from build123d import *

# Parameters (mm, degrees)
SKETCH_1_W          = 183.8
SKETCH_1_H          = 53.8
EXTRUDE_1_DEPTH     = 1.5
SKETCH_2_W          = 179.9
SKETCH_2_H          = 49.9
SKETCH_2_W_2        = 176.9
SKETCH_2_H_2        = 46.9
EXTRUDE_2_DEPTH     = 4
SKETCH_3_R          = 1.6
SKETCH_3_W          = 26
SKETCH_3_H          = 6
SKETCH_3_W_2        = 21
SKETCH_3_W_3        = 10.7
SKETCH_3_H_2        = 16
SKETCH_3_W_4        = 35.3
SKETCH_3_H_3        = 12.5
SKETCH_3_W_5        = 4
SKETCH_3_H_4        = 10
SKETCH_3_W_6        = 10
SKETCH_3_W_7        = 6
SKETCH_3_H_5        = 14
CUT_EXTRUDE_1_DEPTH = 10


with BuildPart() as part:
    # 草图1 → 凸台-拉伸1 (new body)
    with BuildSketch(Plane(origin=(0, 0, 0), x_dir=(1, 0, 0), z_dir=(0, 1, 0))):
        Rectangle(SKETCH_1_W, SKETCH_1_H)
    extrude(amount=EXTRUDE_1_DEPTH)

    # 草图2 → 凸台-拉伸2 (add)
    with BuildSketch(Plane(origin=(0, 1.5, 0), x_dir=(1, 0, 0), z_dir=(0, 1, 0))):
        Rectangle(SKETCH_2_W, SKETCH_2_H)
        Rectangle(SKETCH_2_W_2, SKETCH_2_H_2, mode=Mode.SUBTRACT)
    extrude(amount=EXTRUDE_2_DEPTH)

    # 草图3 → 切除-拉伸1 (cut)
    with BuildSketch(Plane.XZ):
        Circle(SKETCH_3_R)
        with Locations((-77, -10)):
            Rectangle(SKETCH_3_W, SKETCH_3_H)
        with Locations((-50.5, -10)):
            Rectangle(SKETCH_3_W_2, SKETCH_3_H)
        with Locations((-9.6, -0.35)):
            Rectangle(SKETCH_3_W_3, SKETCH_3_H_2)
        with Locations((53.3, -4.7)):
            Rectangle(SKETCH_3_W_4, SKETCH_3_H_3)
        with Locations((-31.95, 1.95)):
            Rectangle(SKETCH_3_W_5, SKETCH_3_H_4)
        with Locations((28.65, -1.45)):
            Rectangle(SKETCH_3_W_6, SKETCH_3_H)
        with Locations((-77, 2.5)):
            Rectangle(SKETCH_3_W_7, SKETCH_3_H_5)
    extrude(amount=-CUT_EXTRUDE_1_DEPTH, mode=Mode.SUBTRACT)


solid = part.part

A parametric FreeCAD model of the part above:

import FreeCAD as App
import Part
import Sketcher

V = App.Vector

doc = App.newDocument("Part")
params = doc.addObject("Spreadsheet::Sheet", "Params")
for row, (alias, value) in enumerate([
    ("sketch1_width", "183.8 mm"),
    ("sketch1_height", "53.8 mm"),
    ("pad1_length", "1.5 mm"),
    ("sketch2_width", "179.9 mm"),
    ("sketch2_width2", "176.9 mm"),
    ("sketch2_height", "49.9 mm"),
    ("sketch2_height2", "46.9 mm"),
    ("pad2_length", "4 mm"),
    ("sketch3_diameter", "3.2 mm"),
    ("sketch3_width", "26 mm"),
    ("sketch3_width2", "21 mm"),
    ("sketch3_width3", "4 mm"),
    ("sketch3_width4", "10 mm"),
    ("pocket1_length", "10 mm"),
], start=1):
    params.set(f"A{row}", alias)
    params.set(f"B{row}", "=" + value)
    params.setAlias(f"B{row}", alias)

body = doc.addObject("PartDesign::Body", "Body")

sketch1 = doc.addObject("Sketcher::SketchObject", "Sketch")
body.addObject(sketch1)
sketch1.AttachmentSupport = (doc.XZ_Plane, [""])
sketch1.MapMode = "FlatFace"
sketch1.addGeometry([
    Part.LineSegment(V(-91.9, -26.9, 0), V(-91.9, 26.9, 0)),
    Part.LineSegment(V(-91.9, 26.9, 0), V(91.9, 26.9, 0)),
    Part.LineSegment(V(91.9, 26.9, 0), V(91.9, -26.9, 0)),
    Part.LineSegment(V(91.9, -26.9, 0), V(-91.9, -26.9, 0)),
], False)
sketch1.addConstraint([
    Sketcher.Constraint("Coincident", 0, 2, 1, 1),
    Sketcher.Constraint("Coincident", 1, 2, 2, 1),
    Sketcher.Constraint("Coincident", 2, 2, 3, 1),
    Sketcher.Constraint("Coincident", 3, 2, 0, 1),
    Sketcher.Constraint("Vertical", 0),
    Sketcher.Constraint("Horizontal", 1),
    Sketcher.Constraint("Vertical", 2),
    Sketcher.Constraint("Horizontal", 3),
    Sketcher.Constraint("Symmetric", 0, 2, 2, 2, -1, 1),
    Sketcher.Constraint("DistanceX", 1, 1, 1, 2, 183.8),
    Sketcher.Constraint("DistanceY", 0, 1, 0, 2, 53.8),
])
sketch1.setExpression("Constraints[9]", "Params.sketch1_width")
sketch1.setExpression("Constraints[10]", "Params.sketch1_height")
pad1 = doc.addObject("PartDesign::Pad", "Pad")
body.addObject(pad1)
pad1.Profile = sketch1
pad1.setExpression("Length", "Params.pad1_length")
pad1.Reversed = True

sketch2 = doc.addObject("Sketcher::SketchObject", "Sketch001")
body.addObject(sketch2)
sketch2.AttachmentSupport = (doc.XZ_Plane, [""])
sketch2.MapMode = "FlatFace"
sketch2.AttachmentOffset = App.Placement(V(0, 0, -1.5), App.Rotation())
sketch2.addGeometry([
    Part.LineSegment(V(-89.95, -24.95, 0), V(-89.95, 24.95, 0)),
    Part.LineSegment(V(-89.95, 24.95, 0), V(89.95, 24.95, 0)),
    Part.LineSegment(V(89.95, 24.95, 0), V(89.95, -24.95, 0)),
    Part.LineSegment(V(89.95, -24.95, 0), V(-89.95, -24.95, 0)),
    Part.LineSegment(V(88.45, 23.45, 0), V(-88.45, 23.45, 0)),
    Part.LineSegment(V(-88.45, 23.45, 0), V(-88.45, -23.45, 0)),
    Part.LineSegment(V(-88.45, -23.45, 0), V(88.45, -23.45, 0)),
    Part.LineSegment(V(88.45, -23.45, 0), V(88.45, 23.45, 0)),
], False)
sketch2.addConstraint([
    Sketcher.Constraint("Coincident", 0, 2, 1, 1),
    Sketcher.Constraint("Coincident", 1, 2, 2, 1),
    Sketcher.Constraint("Coincident", 2, 2, 3, 1),
    Sketcher.Constraint("Coincident", 3, 2, 0, 1),
    Sketcher.Constraint("Coincident", 4, 2, 5, 1),
    Sketcher.Constraint("Coincident", 5, 2, 6, 1),
    Sketcher.Constraint("Coincident", 6, 2, 7, 1),
    Sketcher.Constraint("Coincident", 7, 2, 4, 1),
    Sketcher.Constraint("Vertical", 0),
    Sketcher.Constraint("Horizontal", 1),
    Sketcher.Constraint("Vertical", 2),
    Sketcher.Constraint("Horizontal", 3),
    Sketcher.Constraint("Horizontal", 4),
    Sketcher.Constraint("Vertical", 5),
    Sketcher.Constraint("Horizontal", 6),
    Sketcher.Constraint("Vertical", 7),
    Sketcher.Constraint("Symmetric", 0, 2, 2, 2, -1, 1),
    Sketcher.Constraint("Symmetric", 4, 2, 6, 2, -1, 1),
    Sketcher.Constraint("DistanceX", 1, 1, 1, 2, 179.9),
    Sketcher.Constraint("DistanceX", 4, 2, 4, 1, 176.9),
    Sketcher.Constraint("DistanceY", 0, 1, 0, 2, 49.9),
    Sketcher.Constraint("DistanceY", 5, 2, 5, 1, 46.9),
])
sketch2.setExpression("Constraints[18]", "Params.sketch2_width")
sketch2.setExpression("Constraints[19]", "Params.sketch2_width2")
sketch2.setExpression("Constraints[20]", "Params.sketch2_height")
sketch2.setExpression("Constraints[21]", "Params.sketch2_height2")
pad2 = doc.addObject("PartDesign::Pad", "Pad001")
body.addObject(pad2)
pad2.Profile = sketch2
pad2.setExpression("Length", "Params.pad2_length")
pad2.Reversed = True

sketch3 = doc.addObject("Sketcher::SketchObject", "Sketch002")
body.addObject(sketch3)
sketch3.AttachmentSupport = (doc.XZ_Plane, [""])
sketch3.MapMode = "FlatFace"
sketch3.addGeometry([
    Part.Circle(V(0, 0, 0), V(0, 0, 1), 1.6),
    Part.LineSegment(V(-90, -7, 0), V(-90, -13, 0)),
    Part.LineSegment(V(-90, -13, 0), V(-64, -13, 0)),
    Part.LineSegment(V(-64, -13, 0), V(-64, -7, 0)),
    Part.LineSegment(V(-64, -7, 0), V(-90, -7, 0)),
    Part.LineSegment(V(-61, -7, 0), V(-61, -13, 0)),
    Part.LineSegment(V(-61, -13, 0), V(-40, -13, 0)),
    Part.LineSegment(V(-40, -13, 0), V(-40, -7, 0)),
    Part.LineSegment(V(-40, -7, 0), V(-61, -7, 0)),
    Part.LineSegment(V(-14.95, 7.65, 0), V(-14.95, -8.35, 0)),
    Part.LineSegment(V(-14.95, -8.35, 0), V(-4.25, -8.35, 0)),
    Part.LineSegment(V(-4.25, -8.35, 0), V(-4.25, 7.65, 0)),
    Part.LineSegment(V(-4.25, 7.65, 0), V(-14.95, 7.65, 0)),
    Part.LineSegment(V(35.65, 1.55, 0), V(35.65, -10.95, 0)),
    Part.LineSegment(V(35.65, -10.95, 0), V(70.95, -10.95, 0)),
    Part.LineSegment(V(70.95, -10.95, 0), V(70.95, 1.55, 0)),
    Part.LineSegment(V(70.95, 1.55, 0), V(35.65, 1.55, 0)),
    Part.LineSegment(V(-33.95, 6.95, 0), V(-33.95, -3.05, 0)),
    Part.LineSegment(V(-33.95, -3.05, 0), V(-29.95, -3.05, 0)),
    Part.LineSegment(V(-29.95, -3.05, 0), V(-29.95, 6.95, 0)),
    Part.LineSegment(V(-29.95, 6.95, 0), V(-33.95, 6.95, 0)),
    Part.LineSegment(V(23.65, 1.55, 0), V(23.65, -4.45, 0)),
    Part.LineSegment(V(23.65, -4.45, 0), V(33.65, -4.45, 0)),
    Part.LineSegment(V(33.65, -4.45, 0), V(33.65, 1.55, 0)),
    Part.LineSegment(V(33.65, 1.55, 0), V(23.65, 1.55, 0)),
    Part.LineSegment(V(-80, 9.5, 0), V(-80, -4.5, 0)),
    Part.LineSegment(V(-80, -4.5, 0), V(-74, -4.5, 0)),
    Part.LineSegment(V(-74, -4.5, 0), V(-74, 9.5, 0)),
    Part.LineSegment(V(-74, 9.5, 0), V(-80, 9.5, 0)),
], False)
sketch3.addConstraint([
    Sketcher.Constraint("Coincident", 1, 2, 2, 1),
    Sketcher.Constraint("Coincident", 2, 2, 3, 1),
    Sketcher.Constraint("Coincident", 3, 2, 4, 1),
    Sketcher.Constraint("Coincident", 4, 2, 1, 1),
    Sketcher.Constraint("Coincident", 5, 2, 6, 1),
    Sketcher.Constraint("Coincident", 6, 2, 7, 1),
    Sketcher.Constraint("Coincident", 7, 2, 8, 1),
    Sketcher.Constraint("Coincident", 8, 2, 5, 1),
    Sketcher.Constraint("Coincident", 9, 2, 10, 1),
    Sketcher.Constraint("Coincident", 10, 2, 11, 1),
    Sketcher.Constraint("Coincident", 11, 2, 12, 1),
    Sketcher.Constraint("Coincident", 12, 2, 9, 1),
    Sketcher.Constraint("Coincident", 13, 2, 14, 1),
    Sketcher.Constraint("Coincident", 14, 2, 15, 1),
    Sketcher.Constraint("Coincident", 15, 2, 16, 1),
    Sketcher.Constraint("Coincident", 16, 2, 13, 1),
    Sketcher.Constraint("Coincident", 17, 2, 18, 1),
    Sketcher.Constraint("Coincident", 18, 2, 19, 1),
    Sketcher.Constraint("Coincident", 19, 2, 20, 1),
    Sketcher.Constraint("Coincident", 20, 2, 17, 1),
    Sketcher.Constraint("Coincident", 21, 2, 22, 1),
    Sketcher.Constraint("Coincident", 22, 2, 23, 1),
    Sketcher.Constraint("Coincident", 23, 2, 24, 1),
    Sketcher.Constraint("Coincident", 24, 2, 21, 1),
    Sketcher.Constraint("Coincident", 25, 2, 26, 1),
    Sketcher.Constraint("Coincident", 26, 2, 27, 1),
    Sketcher.Constraint("Coincident", 27, 2, 28, 1),
    Sketcher.Constraint("Coincident", 28, 2, 25, 1),
    Sketcher.Constraint("Vertical", 1),
    Sketcher.Constraint("Horizontal", 2),
    Sketcher.Constraint("Vertical", 3),
    Sketcher.Constraint("Horizontal", 4),
    Sketcher.Constraint("Vertical", 5),
    Sketcher.Constraint("Horizontal", 6),
    Sketcher.Constraint("Vertical", 7),
    Sketcher.Constraint("Horizontal", 8),
    Sketcher.Constraint("Vertical", 9),
    Sketcher.Constraint("Horizontal", 10),
    Sketcher.Constraint("Vertical", 11),
    Sketcher.Constraint("Horizontal", 12),
    Sketcher.Constraint("Vertical", 13),
    Sketcher.Constraint("Horizontal", 14),
    Sketcher.Constraint("Vertical", 15),
    Sketcher.Constraint("Horizontal", 16),
    Sketcher.Constraint("Vertical", 17),
    Sketcher.Constraint("Horizontal", 18),
    Sketcher.Constraint("Vertical", 19),
    Sketcher.Constraint("Horizontal", 20),
    Sketcher.Constraint("Vertical", 21),
    Sketcher.Constraint("Horizontal", 22),
    Sketcher.Constraint("Vertical", 23),
    Sketcher.Constraint("Horizontal", 24),
    Sketcher.Constraint("Vertical", 25),
    Sketcher.Constraint("Horizontal", 26),
    Sketcher.Constraint("Vertical", 27),
    Sketcher.Constraint("Horizontal", 28),
    Sketcher.Constraint("Coincident", 0, 3, -1, 1),
    Sketcher.Constraint("Horizontal", 2, 2, 5, 2),
    Sketcher.Constraint("Horizontal", 4, 2, 7, 2),
    Sketcher.Constraint("Horizontal", 16, 2, 23, 2),
    Sketcher.Constraint("Equal", 28, 1),
    Sketcher.Constraint("Equal", 24, 17),
    Sketcher.Constraint("Equal", 7, 21),
    Sketcher.Constraint("Diameter", 0, 3.2),
    Sketcher.Constraint("DistanceX", 2, 1, 2, 2, 26.0),
    Sketcher.Constraint("DistanceX", 6, 1, 6, 2, 21.0),
    Sketcher.Constraint("DistanceX", 18, 1, 18, 2, 4.0),
    Sketcher.Constraint("DistanceX", 22, 1, 22, 2, 10.0),
    Sketcher.Constraint("DistanceX", 26, 1, 26, 2, 6.0),
    Sketcher.Constraint("DistanceY", 9, 2, 9, 1, 16.0),
    Sketcher.Constraint("DistanceY", 25, 2, 25, 1, 14.0),
    Sketcher.Constraint("DistanceX", 10, 1, 10, 2, 10.7),
    Sketcher.Constraint("DistanceX", 14, 1, 14, 2, 35.3),
    Sketcher.Constraint("DistanceY", 13, 2, 13, 1, 12.5),
    Sketcher.Constraint("DistanceX", 1, 2, -1, 1, 90.0),
    Sketcher.Constraint("DistanceY", 1, 2, -1, 1, 13.0),
    Sketcher.Constraint("DistanceX", 5, 2, -1, 1, 61.0),
    Sketcher.Constraint("DistanceX", 25, 2, -1, 1, 80.0),
    Sketcher.Constraint("DistanceX", 17, 2, 9, 2, 19.0),
    Sketcher.Constraint("DistanceX", 21, 2, 16, 2, 12.0),
    Sketcher.Constraint("DistanceY", 25, 2, -1, 1, 4.5),
    Sketcher.Constraint("DistanceX", 10, 2, 13, 2, 39.9),
    Sketcher.Constraint("DistanceY", 13, 2, 10, 2, 2.6),
    Sketcher.Constraint("DistanceY", 9, 2, 17, 2, 5.3),
    Sketcher.Constraint("DistanceX", 9, 2, -1, 1, 14.95),
    Sketcher.Constraint("DistanceY", 9, 2, -1, 1, 8.35),
])
sketch3.setExpression("Constraints[63]", "Params.sketch3_diameter")
sketch3.setExpression("Constraints[64]", "Params.sketch3_width")
sketch3.setExpression("Constraints[65]", "Params.sketch3_width2")
sketch3.setExpression("Constraints[66]", "Params.sketch3_width3")
sketch3.setExpression("Constraints[67]", "Params.sketch3_width4")
pocket1 = doc.addObject("PartDesign::Pocket", "Pocket")
body.addObject(pocket1)
pocket1.Profile = sketch3
pocket1.setExpression("Length", "Params.pocket1_length")

doc.recompute()
